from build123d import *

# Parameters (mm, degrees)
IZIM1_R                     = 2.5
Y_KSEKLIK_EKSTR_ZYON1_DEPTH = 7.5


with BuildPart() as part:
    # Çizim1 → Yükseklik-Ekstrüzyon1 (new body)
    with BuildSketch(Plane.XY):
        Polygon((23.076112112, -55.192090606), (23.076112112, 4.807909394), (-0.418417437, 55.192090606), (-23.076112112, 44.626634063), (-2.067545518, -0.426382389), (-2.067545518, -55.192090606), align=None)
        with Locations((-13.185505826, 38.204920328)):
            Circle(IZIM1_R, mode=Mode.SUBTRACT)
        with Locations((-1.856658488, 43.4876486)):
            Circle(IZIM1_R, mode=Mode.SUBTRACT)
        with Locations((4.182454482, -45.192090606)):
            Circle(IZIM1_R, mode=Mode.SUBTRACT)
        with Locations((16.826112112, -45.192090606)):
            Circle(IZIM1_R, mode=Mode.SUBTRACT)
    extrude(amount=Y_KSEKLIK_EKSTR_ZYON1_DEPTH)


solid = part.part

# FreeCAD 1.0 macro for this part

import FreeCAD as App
import Part
import Sketcher
Q = App.Units.Quantity


def add_polygon(sketch, points):
    """Adds a closed chain of lines whose ends are joined by coincident constraints."""
    first, n = sketch.GeometryCount, len(points)
    for a, b in zip(points, points[1:] + points[:1]):
        sketch.addGeometry(Part.LineSegment(App.Vector(*a, 0), App.Vector(*b, 0)), False)
    for i in range(n):
        sketch.addConstraint(Sketcher.Constraint("Coincident", first + i, 2, first + (i + 1) % n, 1))

doc = App.newDocument("Part")
body = doc.addObject("PartDesign::Body", "Body")

sketch1 = doc.addObject("Sketcher::SketchObject", "Sketch")
body.addObject(sketch1)
sketch1.AttachmentSupport = (doc.XY_Plane, [""])
sketch1.MapMode = "FlatFace"
add_polygon(sketch1, [(23.076112, -55.192091), (23.076112, 4.807909), (-0.418417, 55.192091), (-23.076112, 44.626634), (-2.067546, -0.426382), (-2.067546, -55.192091)])
sketch1.addGeometry(Part.Circle(App.Vector(4.182454, -45.192091, 0), App.Vector(0, 0, 1), 2.5), False)
sketch1.addGeometry(Part.Circle(App.Vector(16.826112, -45.192091, 0), App.Vector(0, 0, 1), 2.5), False)
sketch1.addGeometry(Part.Circle(App.Vector(-13.185506, 38.20492, 0), App.Vector(0, 0, 1), 2.5), False)
sketch1.addGeometry(Part.Circle(App.Vector(-1.856658, 43.487649, 0), App.Vector(0, 0, 1), 2.5), False)
sketch1.addConstraint(Sketcher.Constraint("Vertical", 0))
sketch1.addConstraint(Sketcher.Constraint("Vertical", 4))
sketch1.addConstraint(Sketcher.Constraint("Horizontal", 5))
sketch1.addConstraint(Sketcher.Constraint("Equal", 6, 7))
sketch1.addConstraint(Sketcher.Constraint("Equal", 7, 8))
sketch1.addConstraint(Sketcher.Constraint("Equal", 8, 9))
sketch1.addConstraint(Sketcher.Constraint("Perpendicular", 1, 2))
sketch1.addConstraint(Sketcher.Constraint("Perpendicular", 2, 3))
sketch1.addConstraint(Sketcher.Constraint("Horizontal", 6, 3, 7, 3))
sketch1.addConstraint(Sketcher.Constraint("Diameter", 6, Q("5 mm")))
sketch1.addConstraint(Sketcher.Constraint("DistanceY", 0, 1, 0, 2, Q("60 mm")))
sketch1.addConstraint(Sketcher.Constraint("Angle", 1, Q("115 deg")))
sketch1.addConstraint(Sketcher.Constraint("Distance", 2, Q("25 mm")))
sketch1.addConstraint(Sketcher.Constraint("DistanceY", 7, 3, 0, 2, Q("50 mm")))
sketch1.addConstraint(Sketcher.Constraint("DistanceX", 7, 3, 0, 2, Q("6.25 mm")))
sketch1.addConstraint(Sketcher.Constraint("DistanceX", 3, 2, 6, 3, Q("6.25 mm")))
sketch1.addConstraint(Sketcher.Constraint("DistanceY", 4, 2, 4, 1, Q("54.765708 mm")))
sketch1.addConstraint(Sketcher.Constraint("DistanceY", 6, 3, -1, 1, Q("45.192091 mm")))
sketch1.addConstraint(Sketcher.Constraint("DistanceY", -1, 1, 8, 3, Q("38.20492 mm")))
sketch1.addConstraint(Sketcher.Constraint("DistanceX", 9, 3, -1, 1, Q("1.856658 mm")))
sketch1.addConstraint(Sketcher.Constraint("DistanceY", -1, 1, 9, 3, Q("43.487649 mm")))
sketch1.addConstraint(Sketcher.Constraint("DistanceY", -1, 1, 1, 2, Q("55.192091 mm")))
sketch1.addConstraint(Sketcher.Constraint("DistanceX", 8, 3, 6, 3, Q("17.36796 mm")))
sketch1.addConstraint(Sketcher.Constraint("DistanceX", 9, 3, 7, 3, Q("18.682771 mm")))
pad1 = doc.addObject("PartDesign::Pad", "Pad")
body.addObject(pad1)
pad1.Profile = sketch1
pad1.Length = 7.5

doc.recompute()
